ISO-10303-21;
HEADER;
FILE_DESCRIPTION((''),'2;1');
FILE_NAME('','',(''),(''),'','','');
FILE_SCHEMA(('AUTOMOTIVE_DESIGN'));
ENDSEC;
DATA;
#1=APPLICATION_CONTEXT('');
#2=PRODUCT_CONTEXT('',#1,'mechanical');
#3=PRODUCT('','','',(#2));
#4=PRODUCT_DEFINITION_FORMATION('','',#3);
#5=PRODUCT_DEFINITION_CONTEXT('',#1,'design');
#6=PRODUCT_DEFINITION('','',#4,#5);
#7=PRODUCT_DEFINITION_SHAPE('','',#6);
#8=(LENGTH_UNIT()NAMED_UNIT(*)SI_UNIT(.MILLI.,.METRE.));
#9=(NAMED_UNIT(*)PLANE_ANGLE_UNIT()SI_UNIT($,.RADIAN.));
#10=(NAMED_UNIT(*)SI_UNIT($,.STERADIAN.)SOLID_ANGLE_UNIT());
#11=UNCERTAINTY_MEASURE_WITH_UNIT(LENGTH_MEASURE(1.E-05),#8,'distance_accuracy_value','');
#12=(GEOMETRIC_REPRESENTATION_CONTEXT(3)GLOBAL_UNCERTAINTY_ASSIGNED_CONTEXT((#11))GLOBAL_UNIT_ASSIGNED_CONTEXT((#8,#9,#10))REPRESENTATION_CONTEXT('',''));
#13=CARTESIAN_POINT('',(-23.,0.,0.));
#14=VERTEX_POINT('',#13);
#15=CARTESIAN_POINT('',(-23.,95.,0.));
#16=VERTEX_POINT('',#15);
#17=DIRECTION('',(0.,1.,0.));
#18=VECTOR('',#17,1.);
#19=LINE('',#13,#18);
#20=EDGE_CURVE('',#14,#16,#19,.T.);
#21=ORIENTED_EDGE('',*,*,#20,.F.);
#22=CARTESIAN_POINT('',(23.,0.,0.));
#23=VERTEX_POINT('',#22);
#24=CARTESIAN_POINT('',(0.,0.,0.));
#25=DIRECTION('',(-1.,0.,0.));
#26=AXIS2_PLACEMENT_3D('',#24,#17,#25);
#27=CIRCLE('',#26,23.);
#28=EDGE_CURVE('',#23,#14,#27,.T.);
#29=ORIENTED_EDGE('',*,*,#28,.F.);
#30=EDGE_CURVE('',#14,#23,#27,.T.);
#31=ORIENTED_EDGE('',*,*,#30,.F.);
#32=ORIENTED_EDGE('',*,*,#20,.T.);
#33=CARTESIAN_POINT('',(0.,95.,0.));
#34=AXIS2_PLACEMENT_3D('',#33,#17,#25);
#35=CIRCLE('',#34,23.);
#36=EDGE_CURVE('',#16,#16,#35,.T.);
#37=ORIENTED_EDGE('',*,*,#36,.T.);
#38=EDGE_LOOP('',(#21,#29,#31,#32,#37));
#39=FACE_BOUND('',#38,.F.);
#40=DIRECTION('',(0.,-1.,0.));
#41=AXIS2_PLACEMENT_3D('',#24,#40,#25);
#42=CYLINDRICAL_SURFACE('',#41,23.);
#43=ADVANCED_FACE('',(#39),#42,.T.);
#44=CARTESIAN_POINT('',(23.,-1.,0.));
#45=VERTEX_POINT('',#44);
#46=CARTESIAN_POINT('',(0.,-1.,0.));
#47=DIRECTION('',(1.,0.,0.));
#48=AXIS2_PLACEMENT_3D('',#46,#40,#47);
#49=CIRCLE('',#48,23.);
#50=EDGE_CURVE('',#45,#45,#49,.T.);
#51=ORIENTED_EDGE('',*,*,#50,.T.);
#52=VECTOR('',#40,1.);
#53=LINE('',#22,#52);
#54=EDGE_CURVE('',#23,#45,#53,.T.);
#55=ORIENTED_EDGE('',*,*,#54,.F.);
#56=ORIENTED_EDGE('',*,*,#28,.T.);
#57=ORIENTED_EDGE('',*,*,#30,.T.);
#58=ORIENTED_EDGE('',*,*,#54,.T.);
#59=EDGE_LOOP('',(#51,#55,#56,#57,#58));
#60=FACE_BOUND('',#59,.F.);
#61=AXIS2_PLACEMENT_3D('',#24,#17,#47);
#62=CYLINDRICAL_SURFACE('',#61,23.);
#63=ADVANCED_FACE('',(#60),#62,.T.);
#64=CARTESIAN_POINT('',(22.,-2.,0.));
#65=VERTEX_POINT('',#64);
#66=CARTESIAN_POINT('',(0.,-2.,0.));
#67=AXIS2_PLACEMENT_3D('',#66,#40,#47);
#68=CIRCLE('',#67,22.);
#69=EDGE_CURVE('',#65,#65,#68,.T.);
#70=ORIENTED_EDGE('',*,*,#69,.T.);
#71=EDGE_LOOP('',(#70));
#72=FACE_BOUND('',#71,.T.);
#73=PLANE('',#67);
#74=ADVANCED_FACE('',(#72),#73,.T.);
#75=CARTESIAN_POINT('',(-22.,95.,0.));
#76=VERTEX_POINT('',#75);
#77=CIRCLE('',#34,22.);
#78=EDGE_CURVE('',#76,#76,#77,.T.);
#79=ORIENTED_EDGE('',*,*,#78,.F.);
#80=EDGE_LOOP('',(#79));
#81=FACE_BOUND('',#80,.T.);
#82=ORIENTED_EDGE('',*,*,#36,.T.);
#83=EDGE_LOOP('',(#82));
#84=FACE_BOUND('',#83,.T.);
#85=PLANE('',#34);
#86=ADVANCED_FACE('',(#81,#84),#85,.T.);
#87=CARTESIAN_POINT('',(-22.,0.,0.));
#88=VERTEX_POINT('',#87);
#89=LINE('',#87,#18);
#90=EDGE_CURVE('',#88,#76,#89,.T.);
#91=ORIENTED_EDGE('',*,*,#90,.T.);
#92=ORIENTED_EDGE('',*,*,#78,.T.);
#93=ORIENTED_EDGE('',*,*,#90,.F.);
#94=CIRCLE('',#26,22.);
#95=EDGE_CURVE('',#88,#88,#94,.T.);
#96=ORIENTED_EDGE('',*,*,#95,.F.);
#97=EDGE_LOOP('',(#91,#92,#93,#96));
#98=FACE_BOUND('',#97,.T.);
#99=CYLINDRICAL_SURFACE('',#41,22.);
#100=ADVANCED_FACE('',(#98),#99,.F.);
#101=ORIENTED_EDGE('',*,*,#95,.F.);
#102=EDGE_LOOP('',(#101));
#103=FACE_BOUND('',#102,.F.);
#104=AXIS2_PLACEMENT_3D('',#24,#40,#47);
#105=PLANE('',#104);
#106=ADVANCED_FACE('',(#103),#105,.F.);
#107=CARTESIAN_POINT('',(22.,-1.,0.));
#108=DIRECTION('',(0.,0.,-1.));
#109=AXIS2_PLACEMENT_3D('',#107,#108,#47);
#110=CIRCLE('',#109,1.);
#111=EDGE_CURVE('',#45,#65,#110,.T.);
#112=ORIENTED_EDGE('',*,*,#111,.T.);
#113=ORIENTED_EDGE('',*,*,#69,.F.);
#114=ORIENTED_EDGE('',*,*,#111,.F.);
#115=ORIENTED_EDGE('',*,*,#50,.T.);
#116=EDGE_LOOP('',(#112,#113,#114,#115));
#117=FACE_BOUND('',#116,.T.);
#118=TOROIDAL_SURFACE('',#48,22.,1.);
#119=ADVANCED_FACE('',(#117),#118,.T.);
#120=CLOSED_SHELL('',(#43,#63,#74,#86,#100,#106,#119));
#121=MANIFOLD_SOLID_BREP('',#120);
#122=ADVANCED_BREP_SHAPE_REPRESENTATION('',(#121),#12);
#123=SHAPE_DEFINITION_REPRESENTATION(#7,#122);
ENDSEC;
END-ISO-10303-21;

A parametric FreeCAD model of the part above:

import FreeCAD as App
import Part
import Sketcher


def edges_at(feature, points):
    """Names of the edges that pass closest to the given points."""
    edges = feature.Shape.Edges
    near = lambda p: min(range(len(edges)), key=lambda i: edges[i].distToShape(Part.Vertex(*p))[0])
    return sorted({f"Edge{near(p) + 1}" for p in points})

doc = App.newDocument("Part")
params = doc.addObject("Spreadsheet::Sheet", "Params")
for row, (alias, value) in enumerate([
    ("sketch1_diameter", "46 mm"),
    ("sketch1_diameter2", "44 mm"),
    ("pad1_length", "95 mm"),
    ("sketch2_diameter", "46 mm"),
    ("pad2_length", "2 mm"),
    ("fillet_radius", "1 mm"),
], start=1):
    params.set(f"A{row}", alias)
    params.set(f"B{row}", "=" + value)
    params.setAlias(f"B{row}", alias)

body = doc.addObject("PartDesign::Body", "Body")

# Sketch on XZ plane
sketch1 = body.newObject("Sketcher::SketchObject", "Sketch")
sketch1.AttachmentSupport = (doc.getObject("XZ_Plane"), [""])
sketch1.MapMode = "FlatFace"
sketch1.addGeometry(Part.Circle(App.Vector(0, 0, 0), App.Vector(0, 0, 1), 23), False)
sketch1.addGeometry(Part.Circle(App.Vector(0, 0, 0), App.Vector(0, 0, 1), 22), False)
sketch1.addConstraint(Sketcher.Constraint("Coincident", 0, 3, -1, 1))
sketch1.addConstraint(Sketcher.Constraint("Coincident", 1, 3, -1, 1))
sketch1.addConstraint(Sketcher.Constraint("Diameter", 0, 46.0))
sketch1.addConstraint(Sketcher.Constraint("Diameter", 1, 44.0))
sketch1.setExpression("Constraints[2]", "Params.sketch1_diameter")
sketch1.setExpression("Constraints[3]", "Params.sketch1_diameter2")
pad1 = body.newObject("PartDesign::Pad", "Pad")
pad1.Profile = sketch1
pad1.setExpression("Length", "Params.pad1_length")
pad1.Reversed = True

# Sketch on XZ plane
sketch2 = body.newObject("Sketcher::SketchObject", "Sketch001")
sketch2.AttachmentSupport = (doc.getObject("XZ_Plane"), [""])
sketch2.MapMode = "FlatFace"
sketch2.addGeometry(Part.Circle(App.Vector(0, 0, 0), App.Vector(0, 0, 1), 23), False)
sketch2.addConstraint(Sketcher.Constraint("Coincident", 0, 3, -1, 1))
sketch2.addConstraint(Sketcher.Constraint("Diameter", 0, 46.0))
sketch2.setExpression("Constraints[1]", "Params.sketch2_diameter")
pad2 = body.newObject("PartDesign::Pad", "Pad001")
pad2.Profile = sketch2
pad2.setExpression("Length", "Params.pad2_length")
doc.recompute()

fillet = body.newObject("PartDesign::Fillet", "Fillet")
fillet.Base = (pad2, edges_at(pad2, [(-23, -2, 0)]))
fillet.setExpression("Radius", "Params.fillet_radius")

doc.recompute()
